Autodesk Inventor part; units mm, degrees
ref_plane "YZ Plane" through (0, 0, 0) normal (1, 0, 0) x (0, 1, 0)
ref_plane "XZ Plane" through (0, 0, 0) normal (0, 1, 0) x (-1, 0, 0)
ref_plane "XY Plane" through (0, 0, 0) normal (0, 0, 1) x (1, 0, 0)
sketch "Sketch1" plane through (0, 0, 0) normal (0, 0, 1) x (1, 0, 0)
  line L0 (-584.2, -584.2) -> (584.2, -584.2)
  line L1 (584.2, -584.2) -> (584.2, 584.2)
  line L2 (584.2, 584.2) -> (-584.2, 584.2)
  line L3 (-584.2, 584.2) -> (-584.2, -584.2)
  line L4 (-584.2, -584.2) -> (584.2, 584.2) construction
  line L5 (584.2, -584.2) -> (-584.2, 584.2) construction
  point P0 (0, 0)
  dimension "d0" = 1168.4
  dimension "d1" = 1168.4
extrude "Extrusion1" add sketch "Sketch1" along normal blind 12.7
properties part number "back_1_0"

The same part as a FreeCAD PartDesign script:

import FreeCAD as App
import Part
import Sketcher
Q = App.Units.Quantity

doc = App.newDocument("Part")
body = doc.addObject("PartDesign::Body", "Body")

# Sketch on XY plane
sketch1 = body.newObject("Sketcher::SketchObject", "Sketch")
sketch1.AttachmentSupport = (doc.getObject("XY_Plane"), [""])
sketch1.MapMode = "FlatFace"
sketch1.addGeometry([
    Part.LineSegment(App.Vector(-584, 584, 0), App.Vector(-584, -584, 0)),
    Part.LineSegment(App.Vector(-584, -584, 0), App.Vector(584, -584, 0)),
    Part.LineSegment(App.Vector(584, -584, 0), App.Vector(584, 584, 0)),
    Part.LineSegment(App.Vector(584, 584, 0), App.Vector(-584, 584, 0)),
], False)
sketch1.addConstraint([
    Sketcher.Constraint("Coincident", 0, 2, 1, 1),
    Sketcher.Constraint("Coincident", 1, 2, 2, 1),
    Sketcher.Constraint("Coincident", 2, 2, 3, 1),
    Sketcher.Constraint("Coincident", 3, 2, 0, 1),
    Sketcher.Constraint("Vertical", 0),
    Sketcher.Constraint("Horizontal", 1),
    Sketcher.Constraint("Vertical", 2),
    Sketcher.Constraint("Horizontal", 3),
    Sketcher.Constraint("Symmetric", 0, 2, 2, 2, -1, 1),
    Sketcher.Constraint("Equal", 3, 0),
    Sketcher.Constraint("DistanceX", 1, 1, 1, 2, Q("46 in")),
])
pad1 = body.newObject("PartDesign::Pad", "Pad")
pad1.Profile = sketch1
pad1.Length = Q("0.5 in")

doc.recompute()
